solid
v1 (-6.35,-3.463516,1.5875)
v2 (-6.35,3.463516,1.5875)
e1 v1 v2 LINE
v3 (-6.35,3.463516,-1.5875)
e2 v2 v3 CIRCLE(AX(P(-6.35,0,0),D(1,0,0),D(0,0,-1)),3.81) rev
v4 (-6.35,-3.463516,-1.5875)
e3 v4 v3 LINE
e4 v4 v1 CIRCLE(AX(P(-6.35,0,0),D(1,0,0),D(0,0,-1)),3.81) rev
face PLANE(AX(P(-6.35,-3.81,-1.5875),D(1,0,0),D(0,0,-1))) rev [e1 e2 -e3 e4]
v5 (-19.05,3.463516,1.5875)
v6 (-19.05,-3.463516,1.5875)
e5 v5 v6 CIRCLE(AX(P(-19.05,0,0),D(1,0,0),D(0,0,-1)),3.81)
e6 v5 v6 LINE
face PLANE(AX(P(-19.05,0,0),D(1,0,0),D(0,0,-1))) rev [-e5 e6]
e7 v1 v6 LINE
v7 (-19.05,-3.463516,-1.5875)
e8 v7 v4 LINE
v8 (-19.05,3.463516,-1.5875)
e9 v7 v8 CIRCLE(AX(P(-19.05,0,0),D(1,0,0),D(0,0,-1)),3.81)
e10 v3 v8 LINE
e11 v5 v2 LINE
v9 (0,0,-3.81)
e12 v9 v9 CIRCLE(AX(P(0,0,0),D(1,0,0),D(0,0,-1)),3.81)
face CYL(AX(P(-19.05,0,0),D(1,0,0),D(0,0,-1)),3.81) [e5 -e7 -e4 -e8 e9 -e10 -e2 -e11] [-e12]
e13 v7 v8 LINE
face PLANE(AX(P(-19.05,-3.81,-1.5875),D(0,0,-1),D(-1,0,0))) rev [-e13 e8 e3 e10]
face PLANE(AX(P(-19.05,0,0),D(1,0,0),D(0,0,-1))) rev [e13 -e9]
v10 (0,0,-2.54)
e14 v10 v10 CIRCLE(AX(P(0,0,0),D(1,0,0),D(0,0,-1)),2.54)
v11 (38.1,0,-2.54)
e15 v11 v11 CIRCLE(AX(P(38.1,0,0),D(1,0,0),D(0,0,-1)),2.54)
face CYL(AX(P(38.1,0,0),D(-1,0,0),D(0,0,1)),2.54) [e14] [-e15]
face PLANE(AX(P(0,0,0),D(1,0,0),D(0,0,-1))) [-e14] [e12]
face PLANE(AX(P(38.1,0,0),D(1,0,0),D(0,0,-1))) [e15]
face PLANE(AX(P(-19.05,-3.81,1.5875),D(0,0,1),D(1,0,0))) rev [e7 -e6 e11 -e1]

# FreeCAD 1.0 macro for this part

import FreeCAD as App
import Part
import Sketcher

V = App.Vector
Q = App.Units.Quantity

doc = App.newDocument("Part")
body = doc.addObject("PartDesign::Body", "Body")

# Sketch on YZ plane
sketch1 = body.newObject("Sketcher::SketchObject", "Sketch")
sketch1.AttachmentSupport = (doc.getObject("YZ_Plane"), [""])
sketch1.MapMode = "FlatFace"
sketch1.addGeometry(Part.Circle(V(0, 0, 0), V(0, 0, 1), 2.54), False)
sketch1.addConstraint(Sketcher.Constraint("Coincident", 0, 3, -1, 1))
sketch1.addConstraint(Sketcher.Constraint("Diameter", 0, Q("0.2 in")))
pad1 = body.newObject("PartDesign::Pad", "Pad")
pad1.Profile = sketch1
pad1.Length = Q("1.5 in")

# Sketch on YZ plane
sketch2 = body.newObject("Sketcher::SketchObject", "Sketch001")
sketch2.AttachmentSupport = (doc.getObject("YZ_Plane"), [""])
sketch2.MapMode = "FlatFace"
sketch2.addGeometry(Part.Circle(V(0, 0, 0), V(0, 0, 1), 3.81), False)
sketch2.addConstraint(Sketcher.Constraint("Coincident", 0, 3, -1, 1))
sketch2.addConstraint(Sketcher.Constraint("Diameter", 0, Q("0.3 in")))
pad2 = body.newObject("PartDesign::Pad", "Pad001")
pad2.Profile = sketch2
pad2.Length = Q("0.75 in")
pad2.Reversed = True

# Sketch on XZ plane
sketch3 = body.newObject("Sketcher::SketchObject", "Sketch002")
sketch3.AttachmentSupport = (doc.getObject("XZ_Plane"), [""])
sketch3.MapMode = "FlatFace"
sketch3.addGeometry(Part.LineSegment(V(-19.05, -1.5875, 0), V(-19.05, 1.5875, 0)), False)
sketch3.addGeometry(Part.LineSegment(V(-19.05, 1.5875, 0), V(-6.35, 1.5875, 0)), False)
sketch3.addGeometry(Part.LineSegment(V(-6.35, 1.5875, 0), V(-6.35, -1.5875, 0)), False)
sketch3.addGeometry(Part.LineSegment(V(-6.35, -1.5875, 0), V(-19.05, -1.5875, 0)), False)
sketch3.addConstraint(Sketcher.Constraint("Coincident", 0, 2, 1, 1))
sketch3.addConstraint(Sketcher.Constraint("Coincident", 1, 2, 2, 1))
sketch3.addConstraint(Sketcher.Constraint("Coincident", 2, 2, 3, 1))
sketch3.addConstraint(Sketcher.Constraint("Coincident", 3, 2, 0, 1))
sketch3.addConstraint(Sketcher.Constraint("Vertical", 0))
sketch3.addConstraint(Sketcher.Constraint("Horizontal", 1))
sketch3.addConstraint(Sketcher.Constraint("Vertical", 2))
sketch3.addConstraint(Sketcher.Constraint("Horizontal", 3))
sketch3.addConstraint(Sketcher.Constraint("DistanceX", 1, 1, 1, 2, Q("0.5 in")))
sketch3.addConstraint(Sketcher.Constraint("DistanceY", 0, 1, 0, 2, Q("0.125 in")))
sketch3.addConstraint(Sketcher.Constraint("DistanceX", 0, 2, -1, 1, Q("0.75 in")))
sketch3.addConstraint(Sketcher.Constraint("DistanceY", -1, 1, 0, 2, Q("0.0625 in")))
pocket1 = body.newObject("PartDesign::Pocket", "Pocket")
pocket1.Profile = sketch3
pocket1.Type = "ThroughAll"
pocket1.Midplane = True

doc.recompute()
